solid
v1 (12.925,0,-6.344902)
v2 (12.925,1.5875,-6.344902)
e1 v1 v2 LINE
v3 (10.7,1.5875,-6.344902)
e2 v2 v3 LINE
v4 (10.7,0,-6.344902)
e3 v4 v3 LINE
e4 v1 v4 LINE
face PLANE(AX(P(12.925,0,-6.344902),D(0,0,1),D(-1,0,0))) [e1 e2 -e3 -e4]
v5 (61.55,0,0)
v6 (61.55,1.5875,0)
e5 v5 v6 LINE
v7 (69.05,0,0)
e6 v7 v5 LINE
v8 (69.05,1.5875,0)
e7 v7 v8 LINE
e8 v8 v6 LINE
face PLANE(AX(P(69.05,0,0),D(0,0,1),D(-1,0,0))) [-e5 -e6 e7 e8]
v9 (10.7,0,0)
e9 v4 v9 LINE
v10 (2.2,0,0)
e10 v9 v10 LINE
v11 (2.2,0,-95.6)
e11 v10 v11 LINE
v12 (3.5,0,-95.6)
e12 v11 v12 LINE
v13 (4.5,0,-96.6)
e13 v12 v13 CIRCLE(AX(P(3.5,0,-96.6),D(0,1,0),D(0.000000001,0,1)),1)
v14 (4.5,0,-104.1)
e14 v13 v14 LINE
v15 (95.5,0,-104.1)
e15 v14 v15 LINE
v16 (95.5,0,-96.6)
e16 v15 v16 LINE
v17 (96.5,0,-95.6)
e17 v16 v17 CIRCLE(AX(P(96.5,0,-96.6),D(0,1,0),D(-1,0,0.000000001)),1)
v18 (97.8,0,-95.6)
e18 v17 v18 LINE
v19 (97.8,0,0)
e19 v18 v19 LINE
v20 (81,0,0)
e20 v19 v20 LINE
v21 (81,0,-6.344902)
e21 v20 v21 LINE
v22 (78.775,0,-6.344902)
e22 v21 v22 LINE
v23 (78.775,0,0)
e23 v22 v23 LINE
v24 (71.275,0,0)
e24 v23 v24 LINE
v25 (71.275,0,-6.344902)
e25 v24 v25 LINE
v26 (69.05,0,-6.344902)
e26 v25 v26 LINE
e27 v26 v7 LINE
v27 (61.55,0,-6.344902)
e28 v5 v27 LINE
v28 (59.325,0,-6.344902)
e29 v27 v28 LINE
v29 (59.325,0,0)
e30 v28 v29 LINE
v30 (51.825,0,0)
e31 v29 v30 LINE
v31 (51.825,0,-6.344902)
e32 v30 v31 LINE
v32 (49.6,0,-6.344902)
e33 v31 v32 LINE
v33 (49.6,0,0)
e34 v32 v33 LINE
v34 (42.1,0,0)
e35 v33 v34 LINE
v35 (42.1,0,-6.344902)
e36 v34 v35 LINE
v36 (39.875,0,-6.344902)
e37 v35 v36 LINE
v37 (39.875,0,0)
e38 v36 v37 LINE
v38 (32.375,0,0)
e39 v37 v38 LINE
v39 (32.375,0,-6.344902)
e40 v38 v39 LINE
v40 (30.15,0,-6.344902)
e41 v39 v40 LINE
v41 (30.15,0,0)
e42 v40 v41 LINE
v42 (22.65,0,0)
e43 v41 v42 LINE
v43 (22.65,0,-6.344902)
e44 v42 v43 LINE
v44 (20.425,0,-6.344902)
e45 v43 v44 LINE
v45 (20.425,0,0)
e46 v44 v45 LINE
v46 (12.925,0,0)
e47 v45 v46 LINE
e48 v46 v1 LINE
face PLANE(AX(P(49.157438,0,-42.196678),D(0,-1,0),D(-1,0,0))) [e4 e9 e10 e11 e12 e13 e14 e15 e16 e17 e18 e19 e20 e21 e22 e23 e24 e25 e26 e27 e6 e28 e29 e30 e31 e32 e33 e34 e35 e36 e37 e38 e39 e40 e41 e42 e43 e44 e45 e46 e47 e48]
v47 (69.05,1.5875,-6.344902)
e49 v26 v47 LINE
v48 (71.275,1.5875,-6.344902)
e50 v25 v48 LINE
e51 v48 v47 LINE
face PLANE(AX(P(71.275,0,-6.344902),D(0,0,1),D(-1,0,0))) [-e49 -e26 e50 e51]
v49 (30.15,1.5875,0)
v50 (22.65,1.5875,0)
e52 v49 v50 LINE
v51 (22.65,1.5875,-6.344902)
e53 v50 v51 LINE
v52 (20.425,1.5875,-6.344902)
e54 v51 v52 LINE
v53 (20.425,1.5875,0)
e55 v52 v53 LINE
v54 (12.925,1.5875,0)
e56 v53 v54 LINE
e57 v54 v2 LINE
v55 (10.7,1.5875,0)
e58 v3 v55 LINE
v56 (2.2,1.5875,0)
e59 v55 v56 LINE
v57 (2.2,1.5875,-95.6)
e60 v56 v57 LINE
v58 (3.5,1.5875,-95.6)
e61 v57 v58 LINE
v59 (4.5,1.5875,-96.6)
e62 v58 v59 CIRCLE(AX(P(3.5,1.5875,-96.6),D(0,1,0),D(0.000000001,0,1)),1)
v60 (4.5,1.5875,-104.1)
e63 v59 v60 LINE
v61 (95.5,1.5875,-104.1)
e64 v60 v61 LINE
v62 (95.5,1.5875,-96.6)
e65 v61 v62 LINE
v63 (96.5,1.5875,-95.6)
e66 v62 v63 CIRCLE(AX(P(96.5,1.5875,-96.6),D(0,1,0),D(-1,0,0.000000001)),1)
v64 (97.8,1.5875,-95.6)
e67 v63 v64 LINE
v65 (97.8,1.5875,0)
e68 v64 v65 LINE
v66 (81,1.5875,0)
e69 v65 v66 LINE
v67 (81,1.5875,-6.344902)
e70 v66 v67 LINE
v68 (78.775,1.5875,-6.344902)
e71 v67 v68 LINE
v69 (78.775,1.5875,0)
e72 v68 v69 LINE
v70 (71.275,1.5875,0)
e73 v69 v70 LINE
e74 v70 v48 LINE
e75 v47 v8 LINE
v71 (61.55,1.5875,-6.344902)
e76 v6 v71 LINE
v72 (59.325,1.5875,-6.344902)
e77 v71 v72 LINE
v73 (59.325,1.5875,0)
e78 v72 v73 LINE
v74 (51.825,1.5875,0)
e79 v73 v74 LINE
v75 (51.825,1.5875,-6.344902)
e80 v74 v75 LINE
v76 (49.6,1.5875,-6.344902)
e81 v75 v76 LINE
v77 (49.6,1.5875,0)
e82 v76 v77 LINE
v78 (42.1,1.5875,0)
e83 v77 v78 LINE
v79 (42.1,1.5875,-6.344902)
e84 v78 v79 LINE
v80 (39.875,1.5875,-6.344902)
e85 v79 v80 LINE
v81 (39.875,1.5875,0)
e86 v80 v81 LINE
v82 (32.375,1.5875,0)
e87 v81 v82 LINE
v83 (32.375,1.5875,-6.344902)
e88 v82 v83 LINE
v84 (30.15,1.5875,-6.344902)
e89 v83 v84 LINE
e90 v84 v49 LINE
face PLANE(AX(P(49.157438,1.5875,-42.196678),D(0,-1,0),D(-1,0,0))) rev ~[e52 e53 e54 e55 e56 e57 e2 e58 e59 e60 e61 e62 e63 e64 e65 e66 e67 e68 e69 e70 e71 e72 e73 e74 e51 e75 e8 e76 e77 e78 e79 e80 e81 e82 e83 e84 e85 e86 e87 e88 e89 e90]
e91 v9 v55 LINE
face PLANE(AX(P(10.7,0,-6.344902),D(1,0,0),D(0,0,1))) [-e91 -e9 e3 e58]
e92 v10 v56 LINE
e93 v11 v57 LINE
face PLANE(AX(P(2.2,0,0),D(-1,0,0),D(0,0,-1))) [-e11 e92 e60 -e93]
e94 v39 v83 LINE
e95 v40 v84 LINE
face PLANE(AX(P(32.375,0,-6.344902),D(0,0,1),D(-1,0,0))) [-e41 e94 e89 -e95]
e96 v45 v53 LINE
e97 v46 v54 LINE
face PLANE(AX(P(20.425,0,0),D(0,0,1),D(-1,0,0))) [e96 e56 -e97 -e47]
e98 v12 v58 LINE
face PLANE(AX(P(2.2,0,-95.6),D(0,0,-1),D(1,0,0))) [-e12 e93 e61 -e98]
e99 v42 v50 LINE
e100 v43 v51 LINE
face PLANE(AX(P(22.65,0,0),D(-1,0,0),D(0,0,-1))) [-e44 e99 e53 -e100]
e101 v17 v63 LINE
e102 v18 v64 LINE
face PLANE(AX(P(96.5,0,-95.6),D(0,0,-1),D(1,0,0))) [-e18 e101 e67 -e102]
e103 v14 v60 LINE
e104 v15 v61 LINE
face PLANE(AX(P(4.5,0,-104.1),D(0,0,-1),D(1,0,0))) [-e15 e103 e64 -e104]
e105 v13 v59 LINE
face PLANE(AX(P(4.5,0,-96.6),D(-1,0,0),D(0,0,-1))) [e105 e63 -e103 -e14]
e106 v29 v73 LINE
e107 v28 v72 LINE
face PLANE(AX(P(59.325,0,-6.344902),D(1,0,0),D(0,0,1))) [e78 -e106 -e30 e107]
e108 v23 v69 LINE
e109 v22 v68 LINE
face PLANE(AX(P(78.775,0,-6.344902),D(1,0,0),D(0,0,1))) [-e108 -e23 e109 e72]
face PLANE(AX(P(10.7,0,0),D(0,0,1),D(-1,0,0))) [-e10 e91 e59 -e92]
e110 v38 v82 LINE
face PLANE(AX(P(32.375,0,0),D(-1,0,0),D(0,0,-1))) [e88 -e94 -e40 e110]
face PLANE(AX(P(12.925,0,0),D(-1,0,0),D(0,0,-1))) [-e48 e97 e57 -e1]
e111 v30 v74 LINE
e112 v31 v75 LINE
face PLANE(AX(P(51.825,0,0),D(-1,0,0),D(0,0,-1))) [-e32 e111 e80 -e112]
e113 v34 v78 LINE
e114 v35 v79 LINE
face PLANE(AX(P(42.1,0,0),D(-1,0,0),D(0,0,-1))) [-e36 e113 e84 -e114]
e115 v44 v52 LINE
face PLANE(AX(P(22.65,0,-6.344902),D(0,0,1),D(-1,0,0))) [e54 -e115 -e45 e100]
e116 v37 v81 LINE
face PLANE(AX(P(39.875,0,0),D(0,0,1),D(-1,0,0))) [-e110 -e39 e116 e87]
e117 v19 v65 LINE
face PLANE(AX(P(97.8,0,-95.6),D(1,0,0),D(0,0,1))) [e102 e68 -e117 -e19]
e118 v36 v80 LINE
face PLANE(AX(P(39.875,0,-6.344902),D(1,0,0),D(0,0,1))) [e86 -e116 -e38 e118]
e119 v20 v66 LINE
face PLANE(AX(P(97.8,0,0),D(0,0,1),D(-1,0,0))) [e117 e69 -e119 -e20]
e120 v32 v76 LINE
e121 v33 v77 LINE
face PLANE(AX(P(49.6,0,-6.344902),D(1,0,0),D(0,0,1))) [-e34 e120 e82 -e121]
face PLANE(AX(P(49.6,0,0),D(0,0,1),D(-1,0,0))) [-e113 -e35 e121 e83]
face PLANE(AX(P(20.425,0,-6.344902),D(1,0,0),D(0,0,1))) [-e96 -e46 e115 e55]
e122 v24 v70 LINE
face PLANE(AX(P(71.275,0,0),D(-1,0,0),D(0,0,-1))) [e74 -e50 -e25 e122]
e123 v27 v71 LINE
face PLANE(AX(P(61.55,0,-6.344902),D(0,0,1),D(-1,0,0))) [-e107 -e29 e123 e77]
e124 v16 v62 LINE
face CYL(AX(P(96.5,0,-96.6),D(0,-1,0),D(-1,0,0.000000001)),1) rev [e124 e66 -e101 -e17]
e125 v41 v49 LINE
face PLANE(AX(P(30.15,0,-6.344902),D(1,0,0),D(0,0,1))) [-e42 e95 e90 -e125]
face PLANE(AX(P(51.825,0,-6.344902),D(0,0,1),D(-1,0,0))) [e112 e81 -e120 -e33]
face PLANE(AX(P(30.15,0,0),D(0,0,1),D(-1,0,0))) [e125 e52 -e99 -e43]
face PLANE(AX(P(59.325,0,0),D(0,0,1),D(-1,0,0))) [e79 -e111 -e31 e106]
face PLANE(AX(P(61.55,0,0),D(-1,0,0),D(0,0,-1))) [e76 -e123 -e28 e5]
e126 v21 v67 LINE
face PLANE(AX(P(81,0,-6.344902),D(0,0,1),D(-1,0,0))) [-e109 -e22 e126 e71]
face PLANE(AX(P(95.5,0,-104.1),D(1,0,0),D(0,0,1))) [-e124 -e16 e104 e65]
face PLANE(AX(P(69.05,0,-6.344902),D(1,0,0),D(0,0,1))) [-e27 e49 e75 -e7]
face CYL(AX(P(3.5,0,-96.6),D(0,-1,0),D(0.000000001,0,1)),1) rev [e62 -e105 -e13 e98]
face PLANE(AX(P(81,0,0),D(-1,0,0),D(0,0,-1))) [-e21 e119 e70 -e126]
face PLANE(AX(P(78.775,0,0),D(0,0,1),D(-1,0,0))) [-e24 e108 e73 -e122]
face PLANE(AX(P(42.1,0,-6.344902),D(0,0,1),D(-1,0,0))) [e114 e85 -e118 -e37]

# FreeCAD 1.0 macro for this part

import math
import FreeCAD as App
import Part
import Sketcher

V = App.Vector
Q = App.Units.Quantity

doc = App.newDocument("Part")
body = doc.addObject("PartDesign::Body", "Body")

sketch1 = body.newObject("Sketcher::SketchObject", "Sketch")
sketch1.AttachmentSupport = (doc.getObject("XZ_Plane"), [""])
sketch1.MapMode = "FlatFace"
sketch1.addGeometry(Part.LineSegment(V(4.5, -104.1, 0), V(4.5, -96.6, 0)), False)
sketch1.addGeometry(Part.ArcOfCircle(Part.Circle(V(3.5, -96.6, 0), V(0, 0, 1), 1), math.radians(0), math.radians(90)), False)
sketch1.addGeometry(Part.LineSegment(V(3.5, -95.6, 0), V(2.2, -95.6, 0)), False)
sketch1.addGeometry(Part.LineSegment(V(2.2, -95.6, 0), V(2.2, 0, 0)), False)
sketch1.addGeometry(Part.LineSegment(V(2.2, 0, 0), V(10.7, 0, 0)), False)
sketch1.addGeometry(Part.LineSegment(V(10.7, 0, 0), V(10.7, -6.3, 0)), False)
sketch1.addGeometry(Part.LineSegment(V(10.7, -6.3, 0), V(12.9, -6.3, 0)), False)
sketch1.addGeometry(Part.LineSegment(V(12.9, -6.3, 0), V(12.9, 0, 0)), False)
sketch1.addGeometry(Part.LineSegment(V(12.9, 0, 0), V(20.4, 0, 0)), False)
sketch1.addGeometry(Part.LineSegment(V(20.4, 0, 0), V(20.4, -6.3, 0)), False)
sketch1.addGeometry(Part.LineSegment(V(20.4, -6.3, 0), V(22.6, -6.3, 0)), False)
sketch1.addGeometry(Part.LineSegment(V(22.6, -6.3, 0), V(22.6, 0, 0)), False)
sketch1.addGeometry(Part.LineSegment(V(22.6, 0, 0), V(30.1, 0, 0)), False)
sketch1.addGeometry(Part.LineSegment(V(30.1, 0, 0), V(30.1, -6.3, 0)), False)
sketch1.addGeometry(Part.LineSegment(V(30.1, -6.3, 0), V(32.4, -6.3, 0)), False)
sketch1.addGeometry(Part.LineSegment(V(32.4, -6.3, 0), V(32.4, 0, 0)), False)
sketch1.addGeometry(Part.LineSegment(V(32.4, 0, 0), V(39.9, 0, 0)), False)
sketch1.addGeometry(Part.LineSegment(V(39.9, 0, 0), V(39.9, -6.3, 0)), False)
sketch1.addGeometry(Part.LineSegment(V(39.9, -6.3, 0), V(42.1, -6.3, 0)), False)
sketch1.addGeometry(Part.LineSegment(V(42.1, -6.3, 0), V(42.1, 0, 0)), False)
sketch1.addGeometry(Part.LineSegment(V(42.1, 0, 0), V(49.6, 0, 0)), False)
sketch1.addGeometry(Part.LineSegment(V(49.6, 0, 0), V(49.6, -6.3, 0)), False)
sketch1.addGeometry(Part.LineSegment(V(49.6, -6.3, 0), V(51.8, -6.3, 0)), False)
sketch1.addGeometry(Part.LineSegment(V(51.8, -6.3, 0), V(51.8, 0, 0)), False)
sketch1.addGeometry(Part.LineSegment(V(51.8, 0, 0), V(59.3, 0, 0)), False)
sketch1.addGeometry(Part.LineSegment(V(59.3, 0, 0), V(59.3, -6.3, 0)), False)
sketch1.addGeometry(Part.LineSegment(V(59.3, -6.3, 0), V(61.5, -6.3, 0)), False)
sketch1.addGeometry(Part.LineSegment(V(61.5, -6.3, 0), V(61.5, 0, 0)), False)
sketch1.addGeometry(Part.LineSegment(V(61.5, 0, 0), V(69, 0, 0)), False)
sketch1.addGeometry(Part.LineSegment(V(69, 0, 0), V(69, -6.3, 0)), False)
sketch1.addGeometry(Part.LineSegment(V(69, -6.3, 0), V(71.3, -6.3, 0)), False)
sketch1.addGeometry(Part.LineSegment(V(71.3, -6.3, 0), V(71.3, 0, 0)), False)
sketch1.addGeometry(Part.LineSegment(V(71.3, 0, 0), V(78.8, 0, 0)), False)
sketch1.addGeometry(Part.LineSegment(V(78.8, 0, 0), V(78.8, -6.3, 0)), False)
sketch1.addGeometry(Part.LineSegment(V(78.8, -6.3, 0), V(81, -6.3, 0)), False)
sketch1.addGeometry(Part.LineSegment(V(81, -6.3, 0), V(81, 0, 0)), False)
sketch1.addGeometry(Part.LineSegment(V(81, 0, 0), V(97.8, 0, 0)), False)
sketch1.addGeometry(Part.LineSegment(V(97.8, 0, 0), V(97.8, -95.6, 0)), False)
sketch1.addGeometry(Part.LineSegment(V(97.8, -95.6, 0), V(96.5, -95.6, 0)), False)
sketch1.addGeometry(Part.ArcOfCircle(Part.Circle(V(96.5, -96.6, 0), V(0, 0, 1), 1), math.radians(90), math.radians(180)), False)
sketch1.addGeometry(Part.LineSegment(V(95.5, -96.6, 0), V(95.5, -104.1, 0)), False)
sketch1.addGeometry(Part.LineSegment(V(95.5, -104.1, 0), V(4.5, -104.1, 0)), False)
sketch1.addConstraint(Sketcher.Constraint("Tangent", 0, 2, 1, 1))
sketch1.addConstraint(Sketcher.Constraint("Tangent", 1, 2, 2, 1))
sketch1.addConstraint(Sketcher.Constraint("Coincident", 2, 2, 3, 1))
sketch1.addConstraint(Sketcher.Constraint("Coincident", 3, 2, 4, 1))
sketch1.addConstraint(Sketcher.Constraint("Coincident", 4, 2, 5, 1))
sketch1.addConstraint(Sketcher.Constraint("Coincident", 5, 2, 6, 1))
sketch1.addConstraint(Sketcher.Constraint("Coincident", 6, 2, 7, 1))
sketch1.addConstraint(Sketcher.Constraint("Coincident", 7, 2, 8, 1))
sketch1.addConstraint(Sketcher.Constraint("Coincident", 8, 2, 9, 1))
sketch1.addConstraint(Sketcher.Constraint("Coincident", 9, 2, 10, 1))
sketch1.addConstraint(Sketcher.Constraint("Coincident", 10, 2, 11, 1))
sketch1.addConstraint(Sketcher.Constraint("Coincident", 11, 2, 12, 1))
sketch1.addConstraint(Sketcher.Constraint("Coincident", 12, 2, 13, 1))
sketch1.addConstraint(Sketcher.Constraint("Coincident", 13, 2, 14, 1))
sketch1.addConstraint(Sketcher.Constraint("Coincident", 14, 2, 15, 1))
sketch1.addConstraint(Sketcher.Constraint("Coincident", 15, 2, 16, 1))
sketch1.addConstraint(Sketcher.Constraint("Coincident", 16, 2, 17, 1))
sketch1.addConstraint(Sketcher.Constraint("Coincident", 17, 2, 18, 1))
sketch1.addConstraint(Sketcher.Constraint("Coincident", 18, 2, 19, 1))
sketch1.addConstraint(Sketcher.Constraint("Coincident", 19, 2, 20, 1))
sketch1.addConstraint(Sketcher.Constraint("Coincident", 20, 2, 21, 1))
sketch1.addConstraint(Sketcher.Constraint("Coincident", 21, 2, 22, 1))
sketch1.addConstraint(Sketcher.Constraint("Coincident", 22, 2, 23, 1))
sketch1.addConstraint(Sketcher.Constraint("Coincident", 23, 2, 24, 1))
sketch1.addConstraint(Sketcher.Constraint("Coincident", 24, 2, 25, 1))
sketch1.addConstraint(Sketcher.Constraint("Coincident", 25, 2, 26, 1))
sketch1.addConstraint(Sketcher.Constraint("Coincident", 26, 2, 27, 1))
sketch1.addConstraint(Sketcher.Constraint("Coincident", 27, 2, 28, 1))
sketch1.addConstraint(Sketcher.Constraint("Coincident", 28, 2, 29, 1))
sketch1.addConstraint(Sketcher.Constraint("Coincident", 29, 2, 30, 1))
sketch1.addConstraint(Sketcher.Constraint("Coincident", 30, 2, 31, 1))
sketch1.addConstraint(Sketcher.Constraint("Coincident", 31, 2, 32, 1))
sketch1.addConstraint(Sketcher.Constraint("Coincident", 32, 2, 33, 1))
sketch1.addConstraint(Sketcher.Constraint("Coincident", 33, 2, 34, 1))
sketch1.addConstraint(Sketcher.Constraint("Coincident", 34, 2, 35, 1))
sketch1.addConstraint(Sketcher.Constraint("Coincident", 35, 2, 36, 1))
sketch1.addConstraint(Sketcher.Constraint("Coincident", 36, 2, 37, 1))
sketch1.addConstraint(Sketcher.Constraint("Coincident", 37, 2, 38, 1))
sketch1.addConstraint(Sketcher.Constraint("Tangent", 38, 2, 39, 1))
sketch1.addConstraint(Sketcher.Constraint("Tangent", 39, 2, 40, 1))
sketch1.addConstraint(Sketcher.Constraint("Coincident", 40, 2, 41, 1))
sketch1.addConstraint(Sketcher.Constraint("Coincident", 41, 2, 0, 1))
sketch1.addConstraint(Sketcher.Constraint("Vertical", 0))
sketch1.addConstraint(Sketcher.Constraint("Horizontal", 2))
sketch1.addConstraint(Sketcher.Constraint("Vertical", 3))
sketch1.addConstraint(Sketcher.Constraint("Horizontal", 4))
sketch1.addConstraint(Sketcher.Constraint("Vertical", 5))
sketch1.addConstraint(Sketcher.Constraint("Horizontal", 6))
sketch1.addConstraint(Sketcher.Constraint("Vertical", 7))
sketch1.addConstraint(Sketcher.Constraint("Horizontal", 8))
sketch1.addConstraint(Sketcher.Constraint("Vertical", 9))
sketch1.addConstraint(Sketcher.Constraint("Horizontal", 10))
sketch1.addConstraint(Sketcher.Constraint("Vertical", 11))
sketch1.addConstraint(Sketcher.Constraint("Horizontal", 12))
sketch1.addConstraint(Sketcher.Constraint("Vertical", 13))
sketch1.addConstraint(Sketcher.Constraint("Horizontal", 14))
sketch1.addConstraint(Sketcher.Constraint("Vertical", 15))
sketch1.addConstraint(Sketcher.Constraint("Horizontal", 16))
sketch1.addConstraint(Sketcher.Constraint("Vertical", 17))
sketch1.addConstraint(Sketcher.Constraint("Horizontal", 18))
sketch1.addConstraint(Sketcher.Constraint("Vertical", 19))
sketch1.addConstraint(Sketcher.Constraint("Horizontal", 20))
sketch1.addConstraint(Sketcher.Constraint("Vertical", 21))
sketch1.addConstraint(Sketcher.Constraint("Horizontal", 22))
sketch1.addConstraint(Sketcher.Constraint("Vertical", 23))
sketch1.addConstraint(Sketcher.Constraint("Horizontal", 24))
sketch1.addConstraint(Sketcher.Constraint("Vertical", 25))
sketch1.addConstraint(Sketcher.Constraint("Horizontal", 26))
sketch1.addConstraint(Sketcher.Constraint("Vertical", 27))
sketch1.addConstraint(Sketcher.Constraint("Horizontal", 28))
sketch1.addConstraint(Sketcher.Constraint("Vertical", 29))
sketch1.addConstraint(Sketcher.Constraint("Horizontal", 30))
sketch1.addConstraint(Sketcher.Constraint("Vertical", 31))
sketch1.addConstraint(Sketcher.Constraint("Horizontal", 32))
sketch1.addConstraint(Sketcher.Constraint("Vertical", 33))
sketch1.addConstraint(Sketcher.Constraint("Horizontal", 34))
sketch1.addConstraint(Sketcher.Constraint("Vertical", 35))
sketch1.addConstraint(Sketcher.Constraint("Horizontal", 36))
sketch1.addConstraint(Sketcher.Constraint("Vertical", 37))
sketch1.addConstraint(Sketcher.Constraint("Horizontal", 38))
sketch1.addConstraint(Sketcher.Constraint("Vertical", 40))
sketch1.addConstraint(Sketcher.Constraint("Horizontal", 41))
sketch1.addConstraint(Sketcher.Constraint("Equal", 1, 39))
sketch1.addConstraint(Sketcher.Constraint("PointOnObject", 3, 2, -1))
sketch1.addConstraint(Sketcher.Constraint("PointOnObject", 7, 2, -1))
sketch1.addConstraint(Sketcher.Constraint("PointOnObject", 11, 2, -1))
sketch1.addConstraint(Sketcher.Constraint("PointOnObject", 15, 2, -1))
sketch1.addConstraint(Sketcher.Constraint("PointOnObject", 19, 2, -1))
sketch1.addConstraint(Sketcher.Constraint("PointOnObject", 23, 2, -1))
sketch1.addConstraint(Sketcher.Constraint("PointOnObject", 27, 2, -1))
sketch1.addConstraint(Sketcher.Constraint("PointOnObject", 31, 2, -1))
sketch1.addConstraint(Sketcher.Constraint("PointOnObject", 35, 2, -1))
sketch1.addConstraint(Sketcher.Constraint("Horizontal", 1, 3, 39, 3))
sketch1.addConstraint(Sketcher.Constraint("Horizontal", 6, 2, 9, 2))
sketch1.addConstraint(Sketcher.Constraint("Horizontal", 10, 2, 13, 2))
sketch1.addConstraint(Sketcher.Constraint("Horizontal", 14, 2, 17, 2))
sketch1.addConstraint(Sketcher.Constraint("Horizontal", 18, 2, 21, 2))
sketch1.addConstraint(Sketcher.Constraint("Horizontal", 22, 2, 25, 2))
sketch1.addConstraint(Sketcher.Constraint("Horizontal", 26, 2, 29, 2))
sketch1.addConstraint(Sketcher.Constraint("Horizontal", 30, 2, 33, 2))
sketch1.addConstraint(Sketcher.Constraint("Equal", 6, 10))
sketch1.addConstraint(Sketcher.Constraint("Equal", 8, 12))
sketch1.addConstraint(Sketcher.Constraint("Equal", 10, 14))
sketch1.addConstraint(Sketcher.Constraint("Equal", 12, 16))
sketch1.addConstraint(Sketcher.Constraint("Equal", 14, 18))
sketch1.addConstraint(Sketcher.Constraint("Equal", 16, 20))
sketch1.addConstraint(Sketcher.Constraint("Equal", 18, 22))
sketch1.addConstraint(Sketcher.Constraint("Equal", 20, 24))
sketch1.addConstraint(Sketcher.Constraint("Equal", 22, 26))
sketch1.addConstraint(Sketcher.Constraint("Equal", 24, 28))
sketch1.addConstraint(Sketcher.Constraint("Equal", 26, 30))
sketch1.addConstraint(Sketcher.Constraint("Equal", 28, 32))
sketch1.addConstraint(Sketcher.Constraint("Equal", 30, 34))
sketch1.addConstraint(Sketcher.Constraint("Equal", 2, 38))
sketch1.addConstraint(Sketcher.Constraint("Equal", 32, 0))
sketch1.addConstraint(Sketcher.Constraint("Radius", 1, Q("1 mm")))
sketch1.addConstraint(Sketcher.Constraint("DistanceX", 41, 2, 41, 1, Q("91 mm")))
sketch1.addConstraint(Sketcher.Constraint("DistanceX", 2, 2, 2, 1, Q("1.3 mm")))
sketch1.addConstraint(Sketcher.Constraint("DistanceX", 4, 1, 4, 2, Q("8.5 mm")))
sketch1.addConstraint(Sketcher.Constraint("DistanceX", 8, 1, 8, 2, Q("7.5 mm")))
sketch1.addConstraint(Sketcher.Constraint("DistanceX", 36, 1, 36, 2, Q("16.8 mm")))
sketch1.addConstraint(Sketcher.Constraint("DistanceY", 3, 1, 3, 2, Q("95.6 mm")))
sketch1.addConstraint(Sketcher.Constraint("DistanceX", -1, 1, 34, 2, Q("81 mm")))
sketch1.addConstraint(Sketcher.Constraint("DistanceY", 5, 2, 5, 1, Q("6.344902 mm")))
pad1 = body.newObject("PartDesign::Pad", "Pad")
pad1.Profile = sketch1
pad1.Length = 1.5875
pad1.Reversed = True

doc.recompute()
